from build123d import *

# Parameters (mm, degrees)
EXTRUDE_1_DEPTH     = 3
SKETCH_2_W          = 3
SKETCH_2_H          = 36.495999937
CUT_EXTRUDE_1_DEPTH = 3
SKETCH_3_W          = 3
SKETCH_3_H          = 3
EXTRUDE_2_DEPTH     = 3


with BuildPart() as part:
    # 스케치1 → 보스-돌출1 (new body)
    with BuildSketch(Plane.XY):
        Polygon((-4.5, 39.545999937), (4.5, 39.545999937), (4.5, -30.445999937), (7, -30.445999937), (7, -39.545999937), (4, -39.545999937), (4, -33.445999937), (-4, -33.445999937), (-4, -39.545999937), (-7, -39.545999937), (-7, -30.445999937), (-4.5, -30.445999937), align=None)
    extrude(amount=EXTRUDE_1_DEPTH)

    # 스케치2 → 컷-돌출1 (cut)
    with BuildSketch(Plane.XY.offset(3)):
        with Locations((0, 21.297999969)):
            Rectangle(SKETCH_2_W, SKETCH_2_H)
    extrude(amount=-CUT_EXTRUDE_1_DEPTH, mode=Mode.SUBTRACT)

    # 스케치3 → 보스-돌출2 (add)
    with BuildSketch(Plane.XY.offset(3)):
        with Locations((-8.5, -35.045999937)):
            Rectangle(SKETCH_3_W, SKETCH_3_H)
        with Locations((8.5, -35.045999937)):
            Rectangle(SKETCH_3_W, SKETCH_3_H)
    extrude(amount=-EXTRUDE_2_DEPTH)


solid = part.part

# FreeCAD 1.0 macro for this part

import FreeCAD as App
import Part
import Sketcher
from FreeCAD import Vector
Q = App.Units.Quantity


def add_polygon(sketch, points):
    """Adds a closed chain of lines whose ends are joined by coincident constraints."""
    first, n = sketch.GeometryCount, len(points)
    for a, b in zip(points, points[1:] + points[:1]):
        sketch.addGeometry(Part.LineSegment(App.Vector(*a, 0), App.Vector(*b, 0)), False)
    for i in range(n):
        sketch.addConstraint(Sketcher.Constraint("Coincident", first + i, 2, first + (i + 1) % n, 1))

doc = App.newDocument("Part")
body = doc.addObject("PartDesign::Body", "Body")

# Sketch on XY plane
sketch1 = body.newObject("Sketcher::SketchObject", "Sketch")
sketch1.AttachmentSupport = (doc.getObject("XY_Plane"), [""])
sketch1.MapMode = "FlatFace"
add_polygon(sketch1, [(4.5, 39.546), (-4.5, 39.546), (-4.5, -30.446), (-7, -30.446), (-7, -39.546), (-4, -39.546), (-4, -33.446), (4, -33.446), (4, -39.546), (7, -39.546), (7, -30.446), (4.5, -30.446)])  # lines 0-11
sketch1.addConstraint(Sketcher.Constraint("Horizontal", 0))
sketch1.addConstraint(Sketcher.Constraint("Vertical", 1))
sketch1.addConstraint(Sketcher.Constraint("Horizontal", 2))
sketch1.addConstraint(Sketcher.Constraint("Vertical", 3))
sketch1.addConstraint(Sketcher.Constraint("Horizontal", 4))
sketch1.addConstraint(Sketcher.Constraint("Vertical", 5))
sketch1.addConstraint(Sketcher.Constraint("Horizontal", 6))
sketch1.addConstraint(Sketcher.Constraint("Vertical", 7))
sketch1.addConstraint(Sketcher.Constraint("Horizontal", 8))
sketch1.addConstraint(Sketcher.Constraint("Vertical", 9))
sketch1.addConstraint(Sketcher.Constraint("Horizontal", 10))
sketch1.addConstraint(Sketcher.Constraint("Vertical", 11))
sketch1.addConstraint(Sketcher.Constraint("Symmetric", 4, 2, 7, 2, -2))
sketch1.addConstraint(Sketcher.Constraint("Symmetric", 2, 2, 9, 2, -2))
sketch1.addConstraint(Sketcher.Constraint("Equal", 2, 10))
sketch1.addConstraint(Sketcher.Constraint("DistanceX", 0, 2, 0, 1, Q("9 mm")))
sketch1.addConstraint(Sketcher.Constraint("DistanceX", 4, 1, 4, 2, Q("3 mm")))
sketch1.addConstraint(Sketcher.Constraint("DistanceX", 6, 1, 6, 2, Q("8 mm")))
sketch1.addConstraint(Sketcher.Constraint("DistanceY", 3, 2, 3, 1, Q("9.1 mm")))
sketch1.addConstraint(Sketcher.Constraint("DistanceY", 5, 1, 5, 2, Q("6.1 mm")))
sketch1.addConstraint(Sketcher.Constraint("DistanceY", 1, 2, 1, 1, Q("69.992 mm")))
sketch1.addConstraint(Sketcher.Constraint("DistanceY", -1, 1, 0, 2, Q("39.546 mm")))
pad1 = body.newObject("PartDesign::Pad", "Pad")
pad1.Profile = sketch1
pad1.Length = 3

# Sketch on XY plane
sketch2 = body.newObject("Sketcher::SketchObject", "Sketch001")
sketch2.AttachmentSupport = (doc.getObject("XY_Plane"), [""])
sketch2.MapMode = "FlatFace"
sketch2.AttachmentOffset = App.Placement(Vector(0, 0, 3), App.Rotation())
add_polygon(sketch2, [(-1.5, 39.546), (-1.5, 3.05), (1.5, 3.05), (1.5, 39.546)])  # lines 0-3
sketch2.addConstraint(Sketcher.Constraint("Vertical", 0))
sketch2.addConstraint(Sketcher.Constraint("Horizontal", 1))
sketch2.addConstraint(Sketcher.Constraint("Vertical", 2))
sketch2.addConstraint(Sketcher.Constraint("Horizontal", 3))
sketch2.addConstraint(Sketcher.Constraint("DistanceX", 1, 1, 1, 2, Q("3 mm")))
sketch2.addConstraint(Sketcher.Constraint("DistanceX", 0, 2, -1, 1, Q("1.5 mm")))
sketch2.addConstraint(Sketcher.Constraint("DistanceY", 0, 2, 0, 1, Q("36.496 mm")))
sketch2.addConstraint(Sketcher.Constraint("DistanceY", -1, 1, 0, 2, Q("3.05 mm")))
pocket1 = body.newObject("PartDesign::Pocket", "Pocket")
pocket1.Profile = sketch2
pocket1.Length = 3

# Sketch on XY plane
sketch3 = body.newObject("Sketcher::SketchObject", "Sketch002")
sketch3.AttachmentSupport = (doc.getObject("XY_Plane"), [""])
sketch3.MapMode = "FlatFace"
sketch3.AttachmentOffset = App.Placement(Vector(0, 0, 3), App.Rotation())
add_polygon(sketch3, [(-10, -33.546), (-10, -36.546), (-7, -36.546), (-7, -33.546)])  # lines 0-3
add_polygon(sketch3, [(7, -33.546), (7, -36.546), (10, -36.546), (10, -33.546)])  # lines 4-7
sketch3.addConstraint(Sketcher.Constraint("Vertical", 0))
sketch3.addConstraint(Sketcher.Constraint("Horizontal", 1))
sketch3.addConstraint(Sketcher.Constraint("Vertical", 2))
sketch3.addConstraint(Sketcher.Constraint("Horizontal", 3))
sketch3.addConstraint(Sketcher.Constraint("Vertical", 4))
sketch3.addConstraint(Sketcher.Constraint("Horizontal", 5))
sketch3.addConstraint(Sketcher.Constraint("Vertical", 6))
sketch3.addConstraint(Sketcher.Constraint("Horizontal", 7))
sketch3.addConstraint(Sketcher.Constraint("Symmetric", 1, 2, 4, 2, -2))
sketch3.addConstraint(Sketcher.Constraint("Symmetric", 3, 2, 6, 2, -2))
sketch3.addConstraint(Sketcher.Constraint("Equal", 7, 0))
sketch3.addConstraint(Sketcher.Constraint("DistanceX", 1, 1, 1, 2, Q("3 mm")))
sketch3.addConstraint(Sketcher.Constraint("DistanceX", 0, 2, -1, 1, Q("10 mm")))
sketch3.addConstraint(Sketcher.Constraint("DistanceY", 0, 2, -1, 1, Q("36.546 mm")))
pad2 = body.newObject("PartDesign::Pad", "Pad001")
pad2.Profile = sketch3
pad2.Length = 3
pad2.Reversed = True

doc.recompute()
